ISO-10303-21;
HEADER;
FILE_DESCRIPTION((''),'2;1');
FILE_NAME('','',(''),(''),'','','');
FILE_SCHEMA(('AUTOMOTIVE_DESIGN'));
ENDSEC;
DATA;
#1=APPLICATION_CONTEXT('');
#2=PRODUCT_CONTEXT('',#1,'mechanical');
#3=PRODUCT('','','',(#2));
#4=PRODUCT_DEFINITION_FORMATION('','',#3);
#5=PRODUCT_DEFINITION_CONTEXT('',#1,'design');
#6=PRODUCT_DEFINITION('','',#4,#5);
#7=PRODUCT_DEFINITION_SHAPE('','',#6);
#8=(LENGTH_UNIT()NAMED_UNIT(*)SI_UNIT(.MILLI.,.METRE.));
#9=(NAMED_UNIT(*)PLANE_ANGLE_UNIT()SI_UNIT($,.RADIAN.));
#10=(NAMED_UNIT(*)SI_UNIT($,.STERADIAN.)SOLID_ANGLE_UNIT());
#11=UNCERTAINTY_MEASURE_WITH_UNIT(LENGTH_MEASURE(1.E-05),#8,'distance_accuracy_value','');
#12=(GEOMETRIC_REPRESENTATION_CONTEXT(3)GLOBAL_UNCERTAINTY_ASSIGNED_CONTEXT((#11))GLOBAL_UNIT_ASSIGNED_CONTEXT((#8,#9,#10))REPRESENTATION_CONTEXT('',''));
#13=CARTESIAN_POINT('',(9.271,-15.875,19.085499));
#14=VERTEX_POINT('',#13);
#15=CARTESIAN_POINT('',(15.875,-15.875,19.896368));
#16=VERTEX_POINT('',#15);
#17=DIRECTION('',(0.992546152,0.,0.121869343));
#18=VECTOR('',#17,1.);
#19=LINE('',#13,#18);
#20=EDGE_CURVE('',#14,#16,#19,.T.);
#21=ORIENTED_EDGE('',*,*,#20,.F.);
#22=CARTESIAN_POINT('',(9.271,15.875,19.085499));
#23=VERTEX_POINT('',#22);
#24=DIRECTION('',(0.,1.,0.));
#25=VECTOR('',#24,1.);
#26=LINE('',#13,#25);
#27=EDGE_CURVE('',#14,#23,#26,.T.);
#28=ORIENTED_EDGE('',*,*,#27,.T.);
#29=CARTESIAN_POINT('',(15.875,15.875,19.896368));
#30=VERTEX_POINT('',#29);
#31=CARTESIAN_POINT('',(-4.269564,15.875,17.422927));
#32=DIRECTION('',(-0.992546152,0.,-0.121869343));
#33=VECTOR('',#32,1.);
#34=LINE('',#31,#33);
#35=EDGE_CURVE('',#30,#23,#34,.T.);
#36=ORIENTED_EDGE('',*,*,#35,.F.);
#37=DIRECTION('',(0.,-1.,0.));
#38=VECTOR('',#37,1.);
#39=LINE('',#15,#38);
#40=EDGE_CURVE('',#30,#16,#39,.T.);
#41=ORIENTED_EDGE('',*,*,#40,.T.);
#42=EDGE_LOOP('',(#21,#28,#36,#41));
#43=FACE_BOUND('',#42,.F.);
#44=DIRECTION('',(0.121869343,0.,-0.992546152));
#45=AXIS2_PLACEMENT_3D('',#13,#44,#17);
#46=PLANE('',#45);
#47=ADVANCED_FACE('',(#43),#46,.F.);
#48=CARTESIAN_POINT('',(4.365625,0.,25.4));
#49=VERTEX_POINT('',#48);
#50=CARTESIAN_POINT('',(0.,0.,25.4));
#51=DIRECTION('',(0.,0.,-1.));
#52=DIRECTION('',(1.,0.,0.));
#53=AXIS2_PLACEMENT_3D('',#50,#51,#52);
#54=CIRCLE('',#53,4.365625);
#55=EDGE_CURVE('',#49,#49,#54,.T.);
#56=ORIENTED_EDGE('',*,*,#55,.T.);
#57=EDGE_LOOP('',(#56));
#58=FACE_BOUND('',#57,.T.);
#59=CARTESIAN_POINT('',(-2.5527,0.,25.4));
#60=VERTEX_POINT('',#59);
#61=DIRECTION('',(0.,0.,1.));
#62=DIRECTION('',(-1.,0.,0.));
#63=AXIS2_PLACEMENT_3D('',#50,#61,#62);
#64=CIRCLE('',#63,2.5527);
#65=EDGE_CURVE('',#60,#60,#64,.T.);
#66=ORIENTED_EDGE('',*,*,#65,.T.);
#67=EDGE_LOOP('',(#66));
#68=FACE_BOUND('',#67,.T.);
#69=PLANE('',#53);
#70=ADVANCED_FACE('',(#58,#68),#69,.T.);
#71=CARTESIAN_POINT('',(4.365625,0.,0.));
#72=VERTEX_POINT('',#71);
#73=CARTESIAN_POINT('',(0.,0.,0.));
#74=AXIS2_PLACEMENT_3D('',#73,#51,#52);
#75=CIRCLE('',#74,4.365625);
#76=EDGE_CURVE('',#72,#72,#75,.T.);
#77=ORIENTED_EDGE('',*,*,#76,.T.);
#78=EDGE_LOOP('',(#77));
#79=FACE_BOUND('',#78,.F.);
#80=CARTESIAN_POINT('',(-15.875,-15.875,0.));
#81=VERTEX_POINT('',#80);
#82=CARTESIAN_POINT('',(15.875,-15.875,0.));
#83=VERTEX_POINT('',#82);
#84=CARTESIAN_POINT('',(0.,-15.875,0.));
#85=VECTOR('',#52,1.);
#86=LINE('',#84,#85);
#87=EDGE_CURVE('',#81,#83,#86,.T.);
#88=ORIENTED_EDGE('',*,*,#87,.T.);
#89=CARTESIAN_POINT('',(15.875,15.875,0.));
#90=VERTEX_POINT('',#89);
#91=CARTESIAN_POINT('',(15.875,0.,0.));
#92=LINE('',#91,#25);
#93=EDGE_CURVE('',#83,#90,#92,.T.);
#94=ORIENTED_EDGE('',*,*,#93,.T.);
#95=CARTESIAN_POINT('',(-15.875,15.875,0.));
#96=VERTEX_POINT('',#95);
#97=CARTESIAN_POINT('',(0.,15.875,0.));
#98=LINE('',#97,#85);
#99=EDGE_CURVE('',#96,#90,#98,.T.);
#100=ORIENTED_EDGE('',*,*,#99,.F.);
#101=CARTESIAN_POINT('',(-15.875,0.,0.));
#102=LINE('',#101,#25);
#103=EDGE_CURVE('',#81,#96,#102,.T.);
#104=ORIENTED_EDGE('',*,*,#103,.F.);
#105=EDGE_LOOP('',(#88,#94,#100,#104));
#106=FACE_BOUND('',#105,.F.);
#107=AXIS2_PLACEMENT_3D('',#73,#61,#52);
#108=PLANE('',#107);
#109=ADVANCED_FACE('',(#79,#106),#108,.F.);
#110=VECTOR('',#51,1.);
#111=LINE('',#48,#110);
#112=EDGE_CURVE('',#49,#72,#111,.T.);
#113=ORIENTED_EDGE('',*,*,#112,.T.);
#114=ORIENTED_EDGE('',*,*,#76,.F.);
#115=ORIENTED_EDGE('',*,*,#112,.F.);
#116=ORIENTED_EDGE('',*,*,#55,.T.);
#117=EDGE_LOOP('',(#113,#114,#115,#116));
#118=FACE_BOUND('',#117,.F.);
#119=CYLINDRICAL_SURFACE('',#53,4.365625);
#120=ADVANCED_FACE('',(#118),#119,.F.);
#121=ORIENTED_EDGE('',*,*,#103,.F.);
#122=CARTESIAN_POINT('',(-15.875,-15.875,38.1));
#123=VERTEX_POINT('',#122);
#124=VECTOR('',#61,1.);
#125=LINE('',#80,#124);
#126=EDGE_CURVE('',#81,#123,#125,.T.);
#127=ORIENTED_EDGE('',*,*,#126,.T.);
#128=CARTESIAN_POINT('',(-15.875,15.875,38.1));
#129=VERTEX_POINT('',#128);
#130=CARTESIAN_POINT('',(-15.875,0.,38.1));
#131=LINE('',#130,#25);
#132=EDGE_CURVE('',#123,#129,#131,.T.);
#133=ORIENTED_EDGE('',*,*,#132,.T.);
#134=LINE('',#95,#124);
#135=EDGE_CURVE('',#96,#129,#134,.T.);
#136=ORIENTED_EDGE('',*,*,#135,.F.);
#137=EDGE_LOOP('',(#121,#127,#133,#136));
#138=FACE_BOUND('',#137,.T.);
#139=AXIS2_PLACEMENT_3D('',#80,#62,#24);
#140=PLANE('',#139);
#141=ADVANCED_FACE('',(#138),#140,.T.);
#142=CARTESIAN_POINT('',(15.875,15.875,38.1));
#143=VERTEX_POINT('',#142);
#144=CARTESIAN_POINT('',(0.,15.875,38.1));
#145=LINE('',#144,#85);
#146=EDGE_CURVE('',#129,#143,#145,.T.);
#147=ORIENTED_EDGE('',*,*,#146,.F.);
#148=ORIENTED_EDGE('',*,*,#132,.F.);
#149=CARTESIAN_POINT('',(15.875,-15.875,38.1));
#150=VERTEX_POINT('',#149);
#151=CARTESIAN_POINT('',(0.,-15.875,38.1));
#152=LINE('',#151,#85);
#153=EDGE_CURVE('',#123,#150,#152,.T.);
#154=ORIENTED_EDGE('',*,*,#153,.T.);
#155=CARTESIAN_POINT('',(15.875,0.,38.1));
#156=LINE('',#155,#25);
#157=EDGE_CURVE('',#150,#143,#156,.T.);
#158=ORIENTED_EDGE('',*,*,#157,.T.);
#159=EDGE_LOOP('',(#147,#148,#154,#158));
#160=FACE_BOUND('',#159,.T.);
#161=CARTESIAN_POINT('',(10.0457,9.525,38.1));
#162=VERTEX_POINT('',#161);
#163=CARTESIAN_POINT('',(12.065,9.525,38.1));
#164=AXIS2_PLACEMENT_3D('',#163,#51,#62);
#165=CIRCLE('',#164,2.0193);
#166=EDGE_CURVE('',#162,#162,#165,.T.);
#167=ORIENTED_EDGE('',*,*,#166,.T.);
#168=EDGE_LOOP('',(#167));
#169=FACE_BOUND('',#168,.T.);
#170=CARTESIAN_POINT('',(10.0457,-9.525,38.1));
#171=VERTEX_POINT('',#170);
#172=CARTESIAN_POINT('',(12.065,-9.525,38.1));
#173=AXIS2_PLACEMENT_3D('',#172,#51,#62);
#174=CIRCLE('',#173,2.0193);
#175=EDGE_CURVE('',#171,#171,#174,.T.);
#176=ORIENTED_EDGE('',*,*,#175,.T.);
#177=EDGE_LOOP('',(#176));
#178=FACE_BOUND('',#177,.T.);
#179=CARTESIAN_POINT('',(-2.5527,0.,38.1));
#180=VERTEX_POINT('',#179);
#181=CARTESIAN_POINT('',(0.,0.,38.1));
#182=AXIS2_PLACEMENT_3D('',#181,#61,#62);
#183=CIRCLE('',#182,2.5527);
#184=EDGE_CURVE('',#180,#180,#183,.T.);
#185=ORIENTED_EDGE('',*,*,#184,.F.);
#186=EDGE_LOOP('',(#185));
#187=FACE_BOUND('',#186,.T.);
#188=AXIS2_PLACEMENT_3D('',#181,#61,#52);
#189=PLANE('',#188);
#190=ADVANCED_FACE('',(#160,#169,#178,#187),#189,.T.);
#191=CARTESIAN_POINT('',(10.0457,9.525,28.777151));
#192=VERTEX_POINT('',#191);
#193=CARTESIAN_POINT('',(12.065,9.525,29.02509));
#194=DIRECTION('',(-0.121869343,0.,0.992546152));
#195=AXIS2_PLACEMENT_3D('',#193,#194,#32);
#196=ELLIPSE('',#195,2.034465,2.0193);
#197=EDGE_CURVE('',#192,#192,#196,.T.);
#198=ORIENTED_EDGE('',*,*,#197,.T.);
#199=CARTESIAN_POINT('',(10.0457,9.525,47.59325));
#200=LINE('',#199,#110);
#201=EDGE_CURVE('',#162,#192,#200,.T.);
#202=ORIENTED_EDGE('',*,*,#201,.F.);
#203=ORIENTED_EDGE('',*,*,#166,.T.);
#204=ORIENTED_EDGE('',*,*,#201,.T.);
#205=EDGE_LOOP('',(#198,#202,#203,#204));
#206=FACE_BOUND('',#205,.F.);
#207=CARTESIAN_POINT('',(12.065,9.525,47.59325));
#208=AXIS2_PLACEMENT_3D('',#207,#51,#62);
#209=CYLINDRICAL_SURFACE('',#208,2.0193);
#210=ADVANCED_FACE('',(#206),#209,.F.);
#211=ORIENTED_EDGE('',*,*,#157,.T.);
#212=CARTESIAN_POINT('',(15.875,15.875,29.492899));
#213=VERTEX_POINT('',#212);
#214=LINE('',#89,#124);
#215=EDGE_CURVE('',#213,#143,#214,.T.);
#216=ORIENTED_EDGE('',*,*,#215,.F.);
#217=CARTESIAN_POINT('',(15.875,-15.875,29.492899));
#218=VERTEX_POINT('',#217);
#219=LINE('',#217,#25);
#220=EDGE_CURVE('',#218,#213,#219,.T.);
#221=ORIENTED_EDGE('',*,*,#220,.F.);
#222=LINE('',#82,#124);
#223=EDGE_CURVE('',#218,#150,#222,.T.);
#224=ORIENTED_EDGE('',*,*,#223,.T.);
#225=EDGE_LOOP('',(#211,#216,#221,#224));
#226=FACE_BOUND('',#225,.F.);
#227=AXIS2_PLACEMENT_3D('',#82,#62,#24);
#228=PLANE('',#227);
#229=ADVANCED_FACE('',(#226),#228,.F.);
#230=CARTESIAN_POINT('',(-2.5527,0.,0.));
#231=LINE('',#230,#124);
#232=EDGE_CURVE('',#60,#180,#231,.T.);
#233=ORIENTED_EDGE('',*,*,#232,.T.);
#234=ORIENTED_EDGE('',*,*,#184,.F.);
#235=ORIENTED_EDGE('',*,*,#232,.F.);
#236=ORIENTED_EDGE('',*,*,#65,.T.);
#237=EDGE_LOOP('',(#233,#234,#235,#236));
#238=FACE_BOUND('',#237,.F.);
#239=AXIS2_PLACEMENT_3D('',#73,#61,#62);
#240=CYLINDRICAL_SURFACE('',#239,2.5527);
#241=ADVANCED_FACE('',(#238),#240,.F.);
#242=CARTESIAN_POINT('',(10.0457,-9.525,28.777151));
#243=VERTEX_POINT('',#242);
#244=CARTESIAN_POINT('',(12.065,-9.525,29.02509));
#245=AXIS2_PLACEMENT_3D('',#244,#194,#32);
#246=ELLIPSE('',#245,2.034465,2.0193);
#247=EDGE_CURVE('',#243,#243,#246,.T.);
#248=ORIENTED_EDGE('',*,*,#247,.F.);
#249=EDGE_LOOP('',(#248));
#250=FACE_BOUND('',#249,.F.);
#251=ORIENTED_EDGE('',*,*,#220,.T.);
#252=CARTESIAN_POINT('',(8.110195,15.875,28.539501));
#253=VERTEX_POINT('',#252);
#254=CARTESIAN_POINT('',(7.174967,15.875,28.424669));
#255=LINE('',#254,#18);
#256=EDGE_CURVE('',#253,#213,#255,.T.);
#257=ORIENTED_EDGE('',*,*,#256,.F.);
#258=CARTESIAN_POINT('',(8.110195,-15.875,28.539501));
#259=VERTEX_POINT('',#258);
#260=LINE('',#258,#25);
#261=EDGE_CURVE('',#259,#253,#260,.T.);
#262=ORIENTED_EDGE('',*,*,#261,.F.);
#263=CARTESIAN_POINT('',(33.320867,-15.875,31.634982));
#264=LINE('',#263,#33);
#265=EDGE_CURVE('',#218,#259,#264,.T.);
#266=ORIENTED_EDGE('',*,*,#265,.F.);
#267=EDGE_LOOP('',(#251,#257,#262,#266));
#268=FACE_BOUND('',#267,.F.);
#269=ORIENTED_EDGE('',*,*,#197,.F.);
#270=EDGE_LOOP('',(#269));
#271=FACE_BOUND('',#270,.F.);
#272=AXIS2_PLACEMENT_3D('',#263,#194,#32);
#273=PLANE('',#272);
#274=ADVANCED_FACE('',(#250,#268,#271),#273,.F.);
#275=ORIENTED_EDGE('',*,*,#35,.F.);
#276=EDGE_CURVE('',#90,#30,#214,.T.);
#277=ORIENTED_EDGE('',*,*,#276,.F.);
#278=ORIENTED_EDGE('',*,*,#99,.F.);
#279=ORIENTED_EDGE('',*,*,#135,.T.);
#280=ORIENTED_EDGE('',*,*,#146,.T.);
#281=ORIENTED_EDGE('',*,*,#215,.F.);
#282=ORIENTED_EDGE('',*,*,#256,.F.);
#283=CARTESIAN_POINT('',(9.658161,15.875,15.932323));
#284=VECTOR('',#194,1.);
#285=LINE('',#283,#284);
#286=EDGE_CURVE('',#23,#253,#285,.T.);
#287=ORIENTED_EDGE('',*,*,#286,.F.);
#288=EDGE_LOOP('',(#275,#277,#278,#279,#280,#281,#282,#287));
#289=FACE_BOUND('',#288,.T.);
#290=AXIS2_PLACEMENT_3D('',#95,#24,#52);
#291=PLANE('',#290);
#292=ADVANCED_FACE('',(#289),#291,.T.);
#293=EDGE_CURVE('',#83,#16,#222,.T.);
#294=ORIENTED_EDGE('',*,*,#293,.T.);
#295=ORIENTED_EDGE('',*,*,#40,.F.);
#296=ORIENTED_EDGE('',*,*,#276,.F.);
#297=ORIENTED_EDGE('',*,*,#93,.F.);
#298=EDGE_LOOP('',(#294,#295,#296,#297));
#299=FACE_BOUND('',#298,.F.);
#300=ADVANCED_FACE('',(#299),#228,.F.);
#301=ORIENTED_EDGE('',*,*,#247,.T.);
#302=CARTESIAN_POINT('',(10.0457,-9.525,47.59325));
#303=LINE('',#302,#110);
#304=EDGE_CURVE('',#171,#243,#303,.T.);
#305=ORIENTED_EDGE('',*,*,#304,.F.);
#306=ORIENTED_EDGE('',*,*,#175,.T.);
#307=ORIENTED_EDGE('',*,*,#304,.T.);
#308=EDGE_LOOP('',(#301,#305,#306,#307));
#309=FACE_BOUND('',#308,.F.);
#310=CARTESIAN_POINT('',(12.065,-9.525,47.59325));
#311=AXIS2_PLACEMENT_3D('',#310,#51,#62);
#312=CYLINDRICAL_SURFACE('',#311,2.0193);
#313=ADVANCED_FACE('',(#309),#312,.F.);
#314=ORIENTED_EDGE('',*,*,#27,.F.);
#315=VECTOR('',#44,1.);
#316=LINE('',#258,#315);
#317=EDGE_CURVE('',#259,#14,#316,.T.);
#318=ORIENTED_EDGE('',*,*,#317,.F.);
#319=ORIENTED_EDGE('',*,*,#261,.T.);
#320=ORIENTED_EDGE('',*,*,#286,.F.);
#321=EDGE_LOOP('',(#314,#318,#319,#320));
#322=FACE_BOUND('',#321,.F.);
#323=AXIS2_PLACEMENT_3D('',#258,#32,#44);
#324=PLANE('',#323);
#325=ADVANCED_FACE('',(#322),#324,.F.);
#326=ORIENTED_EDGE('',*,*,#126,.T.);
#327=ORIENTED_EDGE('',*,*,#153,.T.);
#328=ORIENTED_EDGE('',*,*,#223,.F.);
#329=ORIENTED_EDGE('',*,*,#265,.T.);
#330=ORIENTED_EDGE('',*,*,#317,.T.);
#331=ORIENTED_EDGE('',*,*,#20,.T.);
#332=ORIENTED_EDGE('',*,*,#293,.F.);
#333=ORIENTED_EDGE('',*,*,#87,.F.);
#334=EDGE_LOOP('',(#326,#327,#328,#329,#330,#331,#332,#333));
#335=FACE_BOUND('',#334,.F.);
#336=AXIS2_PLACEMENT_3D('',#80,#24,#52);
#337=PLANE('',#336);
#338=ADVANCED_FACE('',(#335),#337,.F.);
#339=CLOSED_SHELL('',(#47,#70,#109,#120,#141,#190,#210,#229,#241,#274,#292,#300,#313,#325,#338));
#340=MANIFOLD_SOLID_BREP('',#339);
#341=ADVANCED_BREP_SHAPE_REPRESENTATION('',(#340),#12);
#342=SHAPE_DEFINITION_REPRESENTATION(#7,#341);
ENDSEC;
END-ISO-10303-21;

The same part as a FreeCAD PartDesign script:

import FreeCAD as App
import Part
import Sketcher

V = App.Vector
Q = App.Units.Quantity


def add_polygon(sketch, points):
    """Adds a closed chain of lines whose ends are joined by coincident constraints."""
    first, n = sketch.GeometryCount, len(points)
    for a, b in zip(points, points[1:] + points[:1]):
        sketch.addGeometry(Part.LineSegment(App.Vector(*a, 0), App.Vector(*b, 0)), False)
    for i in range(n):
        sketch.addConstraint(Sketcher.Constraint("Coincident", first + i, 2, first + (i + 1) % n, 1))

doc = App.newDocument("Part")
body = doc.addObject("PartDesign::Body", "Body")

# Sketch on XY plane
sketch1 = body.newObject("Sketcher::SketchObject", "Sketch")
sketch1.AttachmentSupport = (doc.getObject("XY_Plane"), [""])
sketch1.MapMode = "FlatFace"
add_polygon(sketch1, [(-15.875, 15.875), (-15.875, -15.875), (15.875, -15.875), (15.875, 15.875)])  # lines 0-3
sketch1.addConstraint(Sketcher.Constraint("Vertical", 0))
sketch1.addConstraint(Sketcher.Constraint("Horizontal", 1))
sketch1.addConstraint(Sketcher.Constraint("Vertical", 2))
sketch1.addConstraint(Sketcher.Constraint("Horizontal", 3))
sketch1.addConstraint(Sketcher.Constraint("Symmetric", 0, 2, 2, 2, -1, 1))
sketch1.addConstraint(Sketcher.Constraint("Equal", 3, 0))
sketch1.addConstraint(Sketcher.Constraint("DistanceX", 1, 1, 1, 2, Q("1.25 in")))
pad1 = body.newObject("PartDesign::Pad", "Pad")
pad1.Profile = sketch1
pad1.Length = Q("1.5 in")

# Sketch on XY plane
sketch2 = body.newObject("Sketcher::SketchObject", "Sketch001")
sketch2.AttachmentSupport = (doc.getObject("XY_Plane"), [""])
sketch2.MapMode = "FlatFace"
sketch2.addGeometry(Part.Circle(V(0, 0, 0), V(0, 0, 1), 2.5527), False)
sketch2.addConstraint(Sketcher.Constraint("Coincident", 0, 3, -1, 1))
sketch2.addConstraint(Sketcher.Constraint("Diameter", 0, Q("0.201 in")))
doc.recompute()
hole = body.newObject("PartDesign::Hole", "Hole")
hole.Profile = sketch2
hole.ThreadType = "None"
hole.Diameter = Q("0.201 in")
hole.DepthType = "ThroughAll"
hole.HoleCutType = "Counterbore"
hole.HoleCutDiameter = Q("0.34375 in")
hole.HoleCutDepth = Q("1 in")
hole.Reversed = True

# Sketch on XZ plane
sketch3 = body.newObject("Sketcher::SketchObject", "Sketch002")
sketch3.AttachmentSupport = (doc.getObject("XZ_Plane"), [""])
sketch3.MapMode = "FlatFace"
sketch3.AttachmentOffset = App.Placement(V(0, 0, 0.625 * 25.4), App.Rotation())
add_polygon(sketch3, [(34.481672, 22.18098), (33.320867, 31.634982), (8.110195, 28.539501), (9.271, 19.085499)])  # lines 0-3
sketch3.addConstraint(Sketcher.Constraint("Perpendicular", 0, 1))
sketch3.addConstraint(Sketcher.Constraint("Perpendicular", 1, 2))
sketch3.addConstraint(Sketcher.Constraint("Perpendicular", 2, 3))
sketch3.addConstraint(Sketcher.Constraint("Distance", 1, Q("1 in")))
sketch3.addConstraint(Sketcher.Constraint("Angle", 0, Q("97 deg")))
sketch3.addConstraint(Sketcher.Constraint("Distance", 0, Q("0.375 in")))
sketch3.addConstraint(Sketcher.Constraint("DistanceX", -1, 1, 2, 2, Q("0.365 in")))
sketch3.addConstraint(Sketcher.Constraint("DistanceY", -1, 1, 1, 2, 28.539501))
pocket1 = body.newObject("PartDesign::Pocket", "Pocket")
pocket1.Profile = sketch3
pocket1.Type = "ThroughAll"

# Sketch on XY plane
sketch4 = body.newObject("Sketcher::SketchObject", "Sketch003")
sketch4.AttachmentSupport = (doc.getObject("XY_Plane"), [""])
sketch4.MapMode = "FlatFace"
sketch4.AttachmentOffset = App.Placement(V(0, 0, 1.5 * 25.4), App.Rotation())
sketch4.addGeometry(Part.Circle(V(12.065, -9.525, 0), V(0, 0, 1), 2.0193), False)
sketch4.addGeometry(Part.Circle(V(12.065, 9.525, 0), V(0, 0, 1), 2.0193), False)
sketch4.addConstraint(Sketcher.Constraint("Equal", 0, 1))
sketch4.addConstraint(Sketcher.Constraint("Symmetric", 0, 3, 1, 3, -1))
sketch4.addConstraint(Sketcher.Constraint("Diameter", 0, Q("0.159 in")))
sketch4.addConstraint(Sketcher.Constraint("DistanceY", 0, 3, 1, 3, Q("0.75 in")))
sketch4.addConstraint(Sketcher.Constraint("DistanceX", -1, 1, 0, 3, Q("0.475 in")))
doc.recompute()
hole2 = body.newObject("PartDesign::Hole", "Hole001")
hole2.Profile = sketch4
hole2.ThreadType = "None"
hole2.Diameter = Q("0.159 in")
hole2.DepthType = "Dimension"
hole2.Depth = 9.49325
hole2.DrillPoint = "Angled"
hole2.DrillPointAngle = 118

doc.recompute()
